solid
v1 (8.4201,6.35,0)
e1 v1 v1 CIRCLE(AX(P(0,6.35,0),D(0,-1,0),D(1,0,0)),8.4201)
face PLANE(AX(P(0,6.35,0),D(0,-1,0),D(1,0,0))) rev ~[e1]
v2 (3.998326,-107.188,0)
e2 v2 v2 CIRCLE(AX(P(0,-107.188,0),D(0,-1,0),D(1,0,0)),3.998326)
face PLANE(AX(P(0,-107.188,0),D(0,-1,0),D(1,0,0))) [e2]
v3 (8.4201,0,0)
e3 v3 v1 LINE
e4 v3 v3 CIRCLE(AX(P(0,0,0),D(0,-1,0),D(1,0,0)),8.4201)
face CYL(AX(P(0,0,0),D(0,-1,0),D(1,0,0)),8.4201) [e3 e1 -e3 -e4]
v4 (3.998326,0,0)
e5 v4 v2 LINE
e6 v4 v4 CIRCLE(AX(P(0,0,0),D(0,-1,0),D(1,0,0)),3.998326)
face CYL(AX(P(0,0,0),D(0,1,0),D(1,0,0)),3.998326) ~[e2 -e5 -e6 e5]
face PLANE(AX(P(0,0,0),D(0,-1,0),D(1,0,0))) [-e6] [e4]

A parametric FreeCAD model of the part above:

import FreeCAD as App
import Part
import Sketcher

V = App.Vector
Q = App.Units.Quantity

doc = App.newDocument("Part")
body = doc.addObject("PartDesign::Body", "Body")

sketch1 = body.newObject("Sketcher::SketchObject", "Sketch")
sketch1.AttachmentSupport = (doc.getObject("XZ_Plane"), [""])
sketch1.MapMode = "FlatFace"
sketch1.addGeometry(Part.Circle(V(0, 0, 0), V(0, 0, 1), 4), False)
sketch1.addConstraint([
    Sketcher.Constraint("Coincident", 0, 3, -1, 1),
    Sketcher.Constraint("Diameter", 0, 7.996652),
])
pad1 = body.newObject("PartDesign::Pad", "Pad")
pad1.Profile = sketch1
pad1.Length = Q("4.22 in")

sketch2 = body.newObject("Sketcher::SketchObject", "Sketch001")
sketch2.AttachmentSupport = (doc.getObject("XZ_Plane"), [""])
sketch2.MapMode = "FlatFace"
sketch2.addGeometry(Part.Circle(V(0, 0, 0), V(0, 0, 1), 8), False)
sketch2.addConstraint([
    Sketcher.Constraint("Coincident", 0, 3, -1, 1),
    Sketcher.Constraint("Diameter", 0, Q("0.663 in")),
])
pad2 = body.newObject("PartDesign::Pad", "Pad001")
pad2.Profile = sketch2
pad2.Length = Q("0.25 in")
pad2.Reversed = True

doc.recompute()
